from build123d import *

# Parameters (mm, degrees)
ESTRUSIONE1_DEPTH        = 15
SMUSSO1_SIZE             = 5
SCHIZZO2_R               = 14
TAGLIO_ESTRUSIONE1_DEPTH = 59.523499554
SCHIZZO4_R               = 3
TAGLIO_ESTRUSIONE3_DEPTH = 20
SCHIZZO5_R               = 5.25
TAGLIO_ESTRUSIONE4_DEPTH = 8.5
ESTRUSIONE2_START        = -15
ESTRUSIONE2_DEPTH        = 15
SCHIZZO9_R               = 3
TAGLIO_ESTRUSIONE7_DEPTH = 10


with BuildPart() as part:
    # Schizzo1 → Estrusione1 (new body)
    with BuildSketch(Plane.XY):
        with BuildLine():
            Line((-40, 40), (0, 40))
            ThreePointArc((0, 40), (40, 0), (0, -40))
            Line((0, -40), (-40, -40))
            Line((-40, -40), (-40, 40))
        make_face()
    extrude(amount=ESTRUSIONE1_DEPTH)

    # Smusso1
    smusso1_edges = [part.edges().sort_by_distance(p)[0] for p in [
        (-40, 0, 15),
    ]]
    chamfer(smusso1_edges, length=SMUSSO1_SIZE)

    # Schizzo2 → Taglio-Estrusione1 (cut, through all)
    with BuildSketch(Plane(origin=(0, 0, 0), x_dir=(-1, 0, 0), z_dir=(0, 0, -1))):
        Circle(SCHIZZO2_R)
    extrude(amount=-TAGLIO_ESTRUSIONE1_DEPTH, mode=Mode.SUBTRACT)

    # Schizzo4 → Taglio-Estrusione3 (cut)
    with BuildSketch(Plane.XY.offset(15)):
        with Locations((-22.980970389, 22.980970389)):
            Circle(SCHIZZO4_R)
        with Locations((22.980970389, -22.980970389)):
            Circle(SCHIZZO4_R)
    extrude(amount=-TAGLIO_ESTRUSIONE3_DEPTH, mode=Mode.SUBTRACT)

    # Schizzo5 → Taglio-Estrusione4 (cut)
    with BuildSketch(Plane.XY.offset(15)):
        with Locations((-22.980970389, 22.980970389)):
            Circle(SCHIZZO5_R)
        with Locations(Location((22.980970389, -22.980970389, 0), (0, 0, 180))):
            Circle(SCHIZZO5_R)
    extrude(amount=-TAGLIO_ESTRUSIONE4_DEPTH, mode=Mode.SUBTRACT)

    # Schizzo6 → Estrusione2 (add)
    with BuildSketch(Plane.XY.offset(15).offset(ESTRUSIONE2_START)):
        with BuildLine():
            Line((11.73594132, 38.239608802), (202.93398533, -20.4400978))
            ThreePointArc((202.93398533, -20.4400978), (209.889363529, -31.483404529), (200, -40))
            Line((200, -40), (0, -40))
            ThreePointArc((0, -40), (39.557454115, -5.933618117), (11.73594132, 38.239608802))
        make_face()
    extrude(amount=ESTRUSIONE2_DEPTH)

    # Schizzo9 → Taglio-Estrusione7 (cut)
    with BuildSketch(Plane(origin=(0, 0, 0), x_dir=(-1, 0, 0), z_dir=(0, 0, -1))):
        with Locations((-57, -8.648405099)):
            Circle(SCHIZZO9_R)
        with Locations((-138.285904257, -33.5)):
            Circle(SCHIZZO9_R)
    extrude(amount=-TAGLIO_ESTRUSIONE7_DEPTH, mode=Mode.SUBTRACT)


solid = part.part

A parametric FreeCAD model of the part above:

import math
import FreeCAD as App
import Part
import Sketcher


def edges_at(feature, points):
    """Names of the edges that pass closest to the given points."""
    edges = feature.Shape.Edges
    near = lambda p: min(range(len(edges)), key=lambda i: edges[i].distToShape(Part.Vertex(*p))[0])
    return sorted({f"Edge{near(p) + 1}" for p in points})

doc = App.newDocument("Part")
body = doc.addObject("PartDesign::Body", "Body")

# Sketch on XY plane
sketch1 = doc.addObject("Sketcher::SketchObject", "Sketch")
body.addObject(sketch1)
sketch1.AttachmentSupport = (doc.XY_Plane, [""])
sketch1.MapMode = "FlatFace"
sketch1.addGeometry(Part.LineSegment(App.Vector(0, 40, 0), App.Vector(-40, 40, 0)), False)
sketch1.addGeometry(Part.LineSegment(App.Vector(-40, 40, 0), App.Vector(-40, -40, 0)), False)
sketch1.addGeometry(Part.LineSegment(App.Vector(-40, -40, 0), App.Vector(0, -40, 0)), False)
sketch1.addGeometry(Part.ArcOfCircle(Part.Circle(App.Vector(0, 0, 0), App.Vector(0, 0, 1), 40), math.radians(-90), math.radians(90)), False)
sketch1.addConstraint(Sketcher.Constraint("Coincident", 0, 2, 1, 1))
sketch1.addConstraint(Sketcher.Constraint("Coincident", 1, 2, 2, 1))
sketch1.addConstraint(Sketcher.Constraint("Tangent", 2, 2, 3, 1))
sketch1.addConstraint(Sketcher.Constraint("Tangent", 3, 2, 0, 1))
sketch1.addConstraint(Sketcher.Constraint("Horizontal", 0))
sketch1.addConstraint(Sketcher.Constraint("Vertical", 1))
sketch1.addConstraint(Sketcher.Constraint("Horizontal", 2))
sketch1.addConstraint(Sketcher.Constraint("Coincident", 3, 3, -1, 1))
sketch1.addConstraint(Sketcher.Constraint("Radius", 3, 40.0))
sketch1.addConstraint(Sketcher.Constraint("DistanceX", 0, 2, 0, 1, 40.0))
pad1 = doc.addObject("PartDesign::Pad", "Pad")
body.addObject(pad1)
pad1.Profile = sketch1
pad1.Length = 15
doc.recompute()

chamfer = doc.addObject("PartDesign::Chamfer", "Chamfer")
body.addObject(chamfer)
chamfer.Base = (pad1, edges_at(pad1, [(-40, 0, 15)]))
chamfer.Size = 5

# Sketch on XY plane
sketch2 = doc.addObject("Sketcher::SketchObject", "Sketch001")
body.addObject(sketch2)
sketch2.AttachmentSupport = (doc.XY_Plane, [""])
sketch2.MapMode = "FlatFace"
sketch2.addGeometry(Part.Circle(App.Vector(0, 0, 0), App.Vector(0, 0, 1), 14), False)
sketch2.addConstraint(Sketcher.Constraint("Coincident", 0, 3, -1, 1))
sketch2.addConstraint(Sketcher.Constraint("Diameter", 0, 28.0))
pocket1 = doc.addObject("PartDesign::Pocket", "Pocket")
body.addObject(pocket1)
pocket1.Profile = sketch2
pocket1.Type = "ThroughAll"
pocket1.Reversed = True

# Sketch on XY plane
sketch3 = doc.addObject("Sketcher::SketchObject", "Sketch002")
body.addObject(sketch3)
sketch3.AttachmentSupport = (doc.XY_Plane, [""])
sketch3.MapMode = "FlatFace"
sketch3.AttachmentOffset = App.Placement(App.Vector(0, 0, 15), App.Rotation())
sketch3.addGeometry(Part.Circle(App.Vector(-23, 23, 0), App.Vector(0, 0, 1), 3), False)
sketch3.addGeometry(Part.Circle(App.Vector(23, -23, 0), App.Vector(0, 0, 1), 3), False)
sketch3.addConstraint(Sketcher.Constraint("Equal", 0, 1))
sketch3.addConstraint(Sketcher.Constraint("Symmetric", 0, 3, 1, 3, -1, 1))
sketch3.addConstraint(Sketcher.Constraint("Diameter", 0, 6.0))
sketch3.addConstraint(Sketcher.Constraint("DistanceX", 0, 3, -1, 1, 22.98097))
sketch3.addConstraint(Sketcher.Constraint("DistanceY", -1, 1, 0, 3, 22.98097))
pocket2 = doc.addObject("PartDesign::Pocket", "Pocket001")
body.addObject(pocket2)
pocket2.Profile = sketch3
pocket2.Length = 20

# Sketch on XY plane
sketch4 = doc.addObject("Sketcher::SketchObject", "Sketch003")
body.addObject(sketch4)
sketch4.AttachmentSupport = (doc.XY_Plane, [""])
sketch4.MapMode = "FlatFace"
sketch4.AttachmentOffset = App.Placement(App.Vector(0, 0, 15), App.Rotation())
sketch4.addGeometry(Part.Circle(App.Vector(-23, 23, 0), App.Vector(0, 0, 1), 5), False)
sketch4.addGeometry(Part.Circle(App.Vector(23, -23, 0), App.Vector(0, 0, 1), 5), False)
sketch4.addConstraint(Sketcher.Constraint("Equal", 0, 1))
sketch4.addConstraint(Sketcher.Constraint("Symmetric", 0, 3, 1, 3, -1, 1))
sketch4.addConstraint(Sketcher.Constraint("Diameter", 0, 10.5))
sketch4.addConstraint(Sketcher.Constraint("DistanceX", 0, 3, -1, 1, 22.98097))
sketch4.addConstraint(Sketcher.Constraint("DistanceY", -1, 1, 0, 3, 22.98097))
pocket3 = doc.addObject("PartDesign::Pocket", "Pocket002")
body.addObject(pocket3)
pocket3.Profile = sketch4
pocket3.Length = 8.5

# Sketch on XY plane
sketch5 = doc.addObject("Sketcher::SketchObject", "Sketch004")
body.addObject(sketch5)
sketch5.AttachmentSupport = (doc.XY_Plane, [""])
sketch5.MapMode = "FlatFace"
sketch5.addGeometry(Part.LineSegment(App.Vector(203, -20, 0), App.Vector(12, 38, 0)), False)
sketch5.addGeometry(Part.ArcOfCircle(Part.Circle(App.Vector(0, 0, 0), App.Vector(0, 0, 1), 40), math.radians(-90), math.radians(73)), False)
sketch5.addGeometry(Part.LineSegment(App.Vector(0, -40, 0), App.Vector(200, -40, 0)), False)
sketch5.addGeometry(Part.ArcOfCircle(Part.Circle(App.Vector(200, -30, 0), App.Vector(0, 0, 1), 10), math.radians(-90), math.radians(73)), False)
sketch5.addConstraint(Sketcher.Constraint("Tangent", 0, 2, 1, 2))
sketch5.addConstraint(Sketcher.Constraint("Tangent", 1, 1, 2, 1))
sketch5.addConstraint(Sketcher.Constraint("Tangent", 2, 2, 3, 1))
sketch5.addConstraint(Sketcher.Constraint("Tangent", 3, 2, 0, 1))
sketch5.addConstraint(Sketcher.Constraint("Horizontal", 2))
sketch5.addConstraint(Sketcher.Constraint("Coincident", 1, 3, -1, 1))
sketch5.addConstraint(Sketcher.Constraint("Radius", 1, 40.0))
sketch5.addConstraint(Sketcher.Constraint("Radius", 3, 10.0))
sketch5.addConstraint(Sketcher.Constraint("DistanceX", 2, 1, 2, 2, 200.0))
pad2 = doc.addObject("PartDesign::Pad", "Pad001")
body.addObject(pad2)
pad2.Profile = sketch5
pad2.Length = 15

# Sketch on XY plane
sketch6 = doc.addObject("Sketcher::SketchObject", "Sketch005")
body.addObject(sketch6)
sketch6.AttachmentSupport = (doc.XY_Plane, [""])
sketch6.MapMode = "FlatFace"
sketch6.addGeometry(Part.Circle(App.Vector(57, -8.6, 0), App.Vector(0, 0, 1), 3), False)
sketch6.addGeometry(Part.Circle(App.Vector(138.3, -33.5, 0), App.Vector(0, 0, 1), 3), False)
sketch6.addConstraint(Sketcher.Constraint("Equal", 0, 1))
sketch6.addConstraint(Sketcher.Constraint("Diameter", 0, 6.0))
sketch6.addConstraint(Sketcher.Constraint("DistanceX", -1, 1, 0, 3, 57.0))
sketch6.addConstraint(Sketcher.Constraint("DistanceY", 1, 3, -1, 1, 33.5))
sketch6.addConstraint(Sketcher.Constraint("DistanceY", 0, 3, -1, 1, 8.648405))
sketch6.addConstraint(Sketcher.Constraint("DistanceX", -1, 1, 1, 3, 138.285904))
pocket4 = doc.addObject("PartDesign::Pocket", "Pocket003")
body.addObject(pocket4)
pocket4.Profile = sketch6
pocket4.Length = 10
pocket4.Reversed = True

doc.recompute()
